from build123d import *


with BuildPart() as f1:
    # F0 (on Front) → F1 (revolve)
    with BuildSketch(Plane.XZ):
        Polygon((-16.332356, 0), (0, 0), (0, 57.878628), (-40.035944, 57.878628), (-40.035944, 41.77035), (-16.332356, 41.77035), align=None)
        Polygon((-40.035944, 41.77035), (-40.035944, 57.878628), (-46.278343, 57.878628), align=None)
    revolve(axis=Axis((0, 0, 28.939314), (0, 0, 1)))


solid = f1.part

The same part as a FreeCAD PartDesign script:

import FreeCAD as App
import Part
import Sketcher
Q = App.Units.Quantity


def add_polygon(sketch, points):
    """Adds a closed chain of lines whose ends are joined by coincident constraints."""
    first, n = sketch.GeometryCount, len(points)
    for a, b in zip(points, points[1:] + points[:1]):
        sketch.addGeometry(Part.LineSegment(App.Vector(*a, 0), App.Vector(*b, 0)), False)
    for i in range(n):
        sketch.addConstraint(Sketcher.Constraint("Coincident", first + i, 2, first + (i + 1) % n, 1))

doc = App.newDocument("Part")
params = doc.addObject("Spreadsheet::Sheet", "Params")
for row, (alias, value) in enumerate([
    ("revolution_angle", "360 deg"),
], start=1):
    params.set(f"A{row}", alias)
    params.set(f"B{row}", "=" + value)
    params.setAlias(f"B{row}", alias)

body = doc.addObject("PartDesign::Body", "Body")

sketch1 = body.newObject("Sketcher::SketchObject", "Sketch")
sketch1.AttachmentSupport = (doc.getObject("XZ_Plane"), [""])
sketch1.MapMode = "FlatFace"
add_polygon(sketch1, [(-16, 0), (0, 0), (0, 58), (-46, 58), (-40, 42), (-16, 42)])
sketch1.addConstraint([
    Sketcher.Constraint("Horizontal", 0),
    Sketcher.Constraint("Vertical", 1),
    Sketcher.Constraint("Horizontal", 2),
    Sketcher.Constraint("Horizontal", 4),
    Sketcher.Constraint("Vertical", 5),
    Sketcher.Constraint("Coincident", 0, 2, -1, 1),
    Sketcher.Constraint("DistanceX", 4, 1, 4, 2, Q("23.703588 mm")),
    Sketcher.Constraint("DistanceY", 5, 2, 5, 1, Q("41.77035 mm")),
    Sketcher.Constraint("DistanceX", 2, 2, 3, 2, Q("6.242399 mm")),
    Sketcher.Constraint("DistanceX", 0, 1, 0, 2, Q("16.332356 mm")),
    Sketcher.Constraint("DistanceY", 1, 1, 1, 2, Q("57.878628 mm")),
])
revolution = body.newObject("PartDesign::Revolution", "Revolution")
revolution.Profile = sketch1
revolution.ReferenceAxis = (sketch1, ["V_Axis"])
revolution.setExpression("Angle", "Params.revolution_angle")

doc.recompute()
